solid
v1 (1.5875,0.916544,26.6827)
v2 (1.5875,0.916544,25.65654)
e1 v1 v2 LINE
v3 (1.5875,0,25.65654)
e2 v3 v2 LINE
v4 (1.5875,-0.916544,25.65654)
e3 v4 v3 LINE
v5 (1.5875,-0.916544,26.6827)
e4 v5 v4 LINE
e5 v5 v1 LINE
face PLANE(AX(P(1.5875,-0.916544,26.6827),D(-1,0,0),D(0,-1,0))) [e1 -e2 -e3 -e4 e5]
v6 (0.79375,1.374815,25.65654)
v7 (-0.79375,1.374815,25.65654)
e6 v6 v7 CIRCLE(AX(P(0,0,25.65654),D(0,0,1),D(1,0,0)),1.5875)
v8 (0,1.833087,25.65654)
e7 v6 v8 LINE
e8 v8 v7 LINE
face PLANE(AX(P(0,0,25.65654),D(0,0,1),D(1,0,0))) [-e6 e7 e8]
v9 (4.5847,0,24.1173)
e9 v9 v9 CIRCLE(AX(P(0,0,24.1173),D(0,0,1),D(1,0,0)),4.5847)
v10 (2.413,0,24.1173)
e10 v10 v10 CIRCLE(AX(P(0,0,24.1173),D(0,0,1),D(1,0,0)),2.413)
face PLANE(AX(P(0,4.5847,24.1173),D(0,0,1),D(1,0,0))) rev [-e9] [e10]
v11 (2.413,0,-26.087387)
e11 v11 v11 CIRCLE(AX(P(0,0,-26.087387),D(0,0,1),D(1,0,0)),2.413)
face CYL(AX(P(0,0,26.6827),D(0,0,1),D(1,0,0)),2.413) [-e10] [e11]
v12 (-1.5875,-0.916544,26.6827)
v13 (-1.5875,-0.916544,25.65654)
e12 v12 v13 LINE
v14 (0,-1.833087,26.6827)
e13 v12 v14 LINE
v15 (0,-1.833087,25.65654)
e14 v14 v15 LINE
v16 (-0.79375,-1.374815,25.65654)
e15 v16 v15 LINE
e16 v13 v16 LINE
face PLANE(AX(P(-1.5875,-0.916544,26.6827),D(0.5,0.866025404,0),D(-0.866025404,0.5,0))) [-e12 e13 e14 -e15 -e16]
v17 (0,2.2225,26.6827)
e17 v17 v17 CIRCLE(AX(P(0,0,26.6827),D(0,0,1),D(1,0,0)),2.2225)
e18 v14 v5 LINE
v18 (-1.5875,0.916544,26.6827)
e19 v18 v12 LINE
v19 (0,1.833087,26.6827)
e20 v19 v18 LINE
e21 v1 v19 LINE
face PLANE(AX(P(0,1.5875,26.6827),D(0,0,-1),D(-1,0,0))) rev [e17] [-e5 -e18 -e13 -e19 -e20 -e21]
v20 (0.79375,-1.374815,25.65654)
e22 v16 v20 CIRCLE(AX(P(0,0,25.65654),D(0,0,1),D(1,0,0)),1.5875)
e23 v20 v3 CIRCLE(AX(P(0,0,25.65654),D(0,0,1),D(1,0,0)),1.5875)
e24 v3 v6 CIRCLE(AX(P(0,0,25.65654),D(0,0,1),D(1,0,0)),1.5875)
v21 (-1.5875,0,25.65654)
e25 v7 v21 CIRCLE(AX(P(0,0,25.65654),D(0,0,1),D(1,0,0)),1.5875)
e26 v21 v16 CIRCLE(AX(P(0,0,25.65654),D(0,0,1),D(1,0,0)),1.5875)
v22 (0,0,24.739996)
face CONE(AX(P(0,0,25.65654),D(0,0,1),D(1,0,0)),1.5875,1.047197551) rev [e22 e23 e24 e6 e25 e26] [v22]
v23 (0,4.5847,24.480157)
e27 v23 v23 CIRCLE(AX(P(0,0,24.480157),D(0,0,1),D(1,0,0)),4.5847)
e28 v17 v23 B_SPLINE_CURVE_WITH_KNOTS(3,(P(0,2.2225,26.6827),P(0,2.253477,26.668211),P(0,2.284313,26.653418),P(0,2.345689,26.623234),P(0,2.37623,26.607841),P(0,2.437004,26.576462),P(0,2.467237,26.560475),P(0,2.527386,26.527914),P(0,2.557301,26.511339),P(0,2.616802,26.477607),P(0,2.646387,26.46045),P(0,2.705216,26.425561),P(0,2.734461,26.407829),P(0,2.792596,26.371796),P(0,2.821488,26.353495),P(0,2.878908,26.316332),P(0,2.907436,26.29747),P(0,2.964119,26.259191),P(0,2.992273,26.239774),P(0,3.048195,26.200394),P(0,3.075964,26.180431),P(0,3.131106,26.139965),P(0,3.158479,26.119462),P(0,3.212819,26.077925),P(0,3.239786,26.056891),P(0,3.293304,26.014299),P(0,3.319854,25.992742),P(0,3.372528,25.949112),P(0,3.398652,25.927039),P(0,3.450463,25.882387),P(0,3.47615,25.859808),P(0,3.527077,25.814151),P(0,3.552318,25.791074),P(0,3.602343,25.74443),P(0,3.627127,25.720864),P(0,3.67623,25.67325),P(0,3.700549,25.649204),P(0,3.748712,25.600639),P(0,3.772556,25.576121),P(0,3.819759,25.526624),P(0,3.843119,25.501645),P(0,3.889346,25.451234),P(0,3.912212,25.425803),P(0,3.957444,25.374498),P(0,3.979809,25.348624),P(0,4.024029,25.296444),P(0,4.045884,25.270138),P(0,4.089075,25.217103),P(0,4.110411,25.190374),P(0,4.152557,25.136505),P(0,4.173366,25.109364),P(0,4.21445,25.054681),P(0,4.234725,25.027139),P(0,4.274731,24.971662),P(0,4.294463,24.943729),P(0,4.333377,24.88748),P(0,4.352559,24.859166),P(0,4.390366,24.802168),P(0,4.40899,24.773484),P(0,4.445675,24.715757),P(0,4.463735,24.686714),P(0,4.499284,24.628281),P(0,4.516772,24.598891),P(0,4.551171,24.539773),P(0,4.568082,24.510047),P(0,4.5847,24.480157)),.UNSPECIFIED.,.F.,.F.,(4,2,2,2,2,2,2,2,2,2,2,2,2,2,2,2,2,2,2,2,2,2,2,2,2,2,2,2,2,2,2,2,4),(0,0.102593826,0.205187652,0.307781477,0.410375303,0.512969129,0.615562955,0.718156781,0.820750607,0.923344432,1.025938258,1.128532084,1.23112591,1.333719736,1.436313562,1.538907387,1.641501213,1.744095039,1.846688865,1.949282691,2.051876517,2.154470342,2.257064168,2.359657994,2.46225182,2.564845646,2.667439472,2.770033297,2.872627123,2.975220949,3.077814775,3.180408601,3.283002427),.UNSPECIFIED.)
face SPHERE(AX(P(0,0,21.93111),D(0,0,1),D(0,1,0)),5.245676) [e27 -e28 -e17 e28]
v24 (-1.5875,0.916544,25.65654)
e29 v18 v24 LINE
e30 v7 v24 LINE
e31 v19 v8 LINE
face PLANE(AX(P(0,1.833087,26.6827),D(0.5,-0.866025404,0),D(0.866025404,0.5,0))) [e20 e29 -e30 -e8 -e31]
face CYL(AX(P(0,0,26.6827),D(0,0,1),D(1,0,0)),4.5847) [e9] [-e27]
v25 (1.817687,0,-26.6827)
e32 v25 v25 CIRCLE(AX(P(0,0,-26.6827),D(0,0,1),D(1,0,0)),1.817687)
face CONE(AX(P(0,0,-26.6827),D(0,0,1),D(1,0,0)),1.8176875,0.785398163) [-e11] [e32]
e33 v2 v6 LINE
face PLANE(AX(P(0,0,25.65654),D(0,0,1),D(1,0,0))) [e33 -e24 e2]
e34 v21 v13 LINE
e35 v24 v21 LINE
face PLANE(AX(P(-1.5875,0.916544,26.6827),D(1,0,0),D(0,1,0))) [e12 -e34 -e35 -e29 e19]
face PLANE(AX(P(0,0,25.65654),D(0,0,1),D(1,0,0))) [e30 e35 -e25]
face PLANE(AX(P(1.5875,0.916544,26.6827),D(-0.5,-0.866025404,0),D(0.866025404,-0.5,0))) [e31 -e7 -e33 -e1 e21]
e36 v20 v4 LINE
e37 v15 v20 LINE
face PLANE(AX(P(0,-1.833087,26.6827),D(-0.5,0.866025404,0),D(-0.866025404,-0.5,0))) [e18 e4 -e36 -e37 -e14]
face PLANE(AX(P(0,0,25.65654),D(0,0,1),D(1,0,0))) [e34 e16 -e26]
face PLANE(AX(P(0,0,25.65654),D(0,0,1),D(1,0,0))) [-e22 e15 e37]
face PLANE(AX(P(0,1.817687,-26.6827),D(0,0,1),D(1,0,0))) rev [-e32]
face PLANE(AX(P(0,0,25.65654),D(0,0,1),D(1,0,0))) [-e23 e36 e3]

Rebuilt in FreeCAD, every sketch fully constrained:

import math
import FreeCAD as App
import Part
import Sketcher
Q = App.Units.Quantity

doc = App.newDocument("Part")
params = doc.addObject("Spreadsheet::Sheet", "Params")
for row, (alias, value) in enumerate([
    ("sketch1_width", "0.025 in"),
    ("revolution_angle", "360 deg"),
], start=1):
    params.set(f"A{row}", alias)
    params.set(f"B{row}", "=" + value)
    params.setAlias(f"B{row}", alias)

body = doc.addObject("PartDesign::Body", "Body")

# Sketch on YZ plane
sketch1 = body.newObject("Sketcher::SketchObject", "Sketch")
sketch1.AttachmentSupport = (doc.getObject("YZ_Plane"), [""])
sketch1.MapMode = "FlatFace"
sketch1.addGeometry([
    Part.LineSegment(App.Vector(2.2225, 26.6827, 0), App.Vector(1.5875, 26.6827, 0)),  # 0
    Part.LineSegment(App.Vector(1.5875, 26.6827, 0), App.Vector(1.5875, 25.65654, 0)),  # 1
    Part.LineSegment(App.Vector(1.5875, 25.65654, 0), App.Vector(0, 24.739996, 0)),  # 2
    Part.LineSegment(App.Vector(0, 24.739996, 0), App.Vector(0, -26.6827, 0)),  # 3
    Part.LineSegment(App.Vector(0, -26.6827, 0), App.Vector(1.817687, -26.6827, 0)),  # 4
    Part.LineSegment(App.Vector(1.817687, -26.6827, 0), App.Vector(2.413, -26.087387, 0)),  # 5
    Part.LineSegment(App.Vector(2.413, -26.087387, 0), App.Vector(2.413, 24.1173, 0)),  # 6
    Part.LineSegment(App.Vector(2.413, 24.1173, 0), App.Vector(4.5847, 24.1173, 0)),  # 7
    Part.LineSegment(App.Vector(4.5847, 24.1173, 0), App.Vector(4.5847, 24.480157, 0)),  # 8
    Part.ArcOfCircle(Part.Circle(App.Vector(0, 21.93111, 0), App.Vector(0, 0, 1), 5.245676), math.radians(29.073623), math.radians(64.932715)),  # 9
], False)
sketch1.addConstraint([
    Sketcher.Constraint("Coincident", 0, 2, 1, 1),
    Sketcher.Constraint("Coincident", 1, 2, 2, 1),
    Sketcher.Constraint("Coincident", 2, 2, 3, 1),
    Sketcher.Constraint("Coincident", 3, 2, 4, 1),
    Sketcher.Constraint("Coincident", 4, 2, 5, 1),
    Sketcher.Constraint("Coincident", 5, 2, 6, 1),
    Sketcher.Constraint("Coincident", 6, 2, 7, 1),
    Sketcher.Constraint("Coincident", 7, 2, 8, 1),
    Sketcher.Constraint("Coincident", 8, 2, 9, 1),
    Sketcher.Constraint("Coincident", 9, 2, 0, 1),
    Sketcher.Constraint("Horizontal", 0),
    Sketcher.Constraint("Vertical", 1),
    Sketcher.Constraint("Vertical", 3),
    Sketcher.Constraint("Horizontal", 4),
    Sketcher.Constraint("Vertical", 6),
    Sketcher.Constraint("Horizontal", 7),
    Sketcher.Constraint("Vertical", 8),
    Sketcher.Constraint("PointOnObject", 9, 3, -2),
    Sketcher.Constraint("PointOnObject", 2, 2, -2),
    Sketcher.Constraint("Angle", 2, Q("-150 deg")),
    Sketcher.Constraint("Angle", 5, Q("45 deg")),
    Sketcher.Constraint("DistanceX", 0, 2, 0, 1, Q("0.025 in")),
    Sketcher.Constraint("DistanceX", 7, 1, 7, 2, Q("0.0855 in")),
    Sketcher.Constraint("DistanceY", 1, 2, 1, 1, Q("0.0404 in")),
    Sketcher.Constraint("DistanceX", -1, 1, 0, 2, Q("0.0625 in")),
    Sketcher.Constraint("DistanceX", -1, 1, 5, 2, Q("0.095 in")),
    Sketcher.Constraint("DistanceY", 3, 2, 0, 2, Q("2.101 in")),
    Sketcher.Constraint("DistanceY", 6, 2, 0, 2, Q("0.101 in")),
    Sketcher.Constraint("DistanceY", -1, 1, 0, 2, Q("1.0505 in")),
    Sketcher.Constraint("Radius", 9, 5.245676),
    Sketcher.Constraint("Distance", 5, 0.841899),
])
sketch1.setExpression("Constraints[21]", "Params.sketch1_width")
revolution = body.newObject("PartDesign::Revolution", "Revolution")
revolution.Profile = sketch1
revolution.ReferenceAxis = (sketch1, ["V_Axis"])
revolution.setExpression("Angle", "Params.revolution_angle")

# Sketch on XY plane
sketch2 = body.newObject("Sketcher::SketchObject", "Sketch001")
sketch2.AttachmentSupport = (doc.getObject("XY_Plane"), [""])
sketch2.MapMode = "FlatFace"
sketch2.AttachmentOffset = App.Placement(App.Vector(0, 0, 1.0101 * 25.4), App.Rotation())
sketch2.addGeometry([
    Part.LineSegment(App.Vector(0, 1.833087, 0), App.Vector(-1.5875, 0.916544, 0)),  # 0
    Part.LineSegment(App.Vector(-1.5875, 0.916544, 0), App.Vector(-1.5875, -0.916544, 0)),  # 1
    Part.LineSegment(App.Vector(-1.5875, -0.916544, 0), App.Vector(0, -1.833087, 0)),  # 2
    Part.LineSegment(App.Vector(0, -1.833087, 0), App.Vector(1.5875, -0.916544, 0)),  # 3
    Part.LineSegment(App.Vector(1.5875, -0.916544, 0), App.Vector(1.5875, 0.916544, 0)),  # 4
    Part.LineSegment(App.Vector(1.5875, 0.916544, 0), App.Vector(0, 1.833087, 0)),  # 5
], False)
sketch2.addConstraint([
    Sketcher.Constraint("Coincident", 0, 2, 1, 1),
    Sketcher.Constraint("Coincident", 1, 2, 2, 1),
    Sketcher.Constraint("Coincident", 2, 2, 3, 1),
    Sketcher.Constraint("Coincident", 3, 2, 4, 1),
    Sketcher.Constraint("Coincident", 4, 2, 5, 1),
    Sketcher.Constraint("Coincident", 5, 2, 0, 1),
    Sketcher.Constraint("Vertical", 1),
    Sketcher.Constraint("Vertical", 4),
    Sketcher.Constraint("Symmetric", 0, 2, 3, 2, -1, 1),
    Sketcher.Constraint("Symmetric", 2, 2, 5, 2, -1, 1),
    Sketcher.Constraint("PointOnObject", 2, 2, -2),
    Sketcher.Constraint("Parallel", 2, 5),
    Sketcher.Constraint("Horizontal", 1, 2, 3, 2),
    Sketcher.Constraint("Angle", 0, Q("-150 deg")),
    Sketcher.Constraint("DistanceX", 0, 2, -1, 1, Q("0.0625 in")),
    Sketcher.Constraint("DistanceY", 1, 2, 1, 1, 1.833087),
])
pocket1 = body.newObject("PartDesign::Pocket", "Pocket")
pocket1.Profile = sketch2
pocket1.Type = "ThroughAll"
pocket1.Reversed = True

doc.recompute()
